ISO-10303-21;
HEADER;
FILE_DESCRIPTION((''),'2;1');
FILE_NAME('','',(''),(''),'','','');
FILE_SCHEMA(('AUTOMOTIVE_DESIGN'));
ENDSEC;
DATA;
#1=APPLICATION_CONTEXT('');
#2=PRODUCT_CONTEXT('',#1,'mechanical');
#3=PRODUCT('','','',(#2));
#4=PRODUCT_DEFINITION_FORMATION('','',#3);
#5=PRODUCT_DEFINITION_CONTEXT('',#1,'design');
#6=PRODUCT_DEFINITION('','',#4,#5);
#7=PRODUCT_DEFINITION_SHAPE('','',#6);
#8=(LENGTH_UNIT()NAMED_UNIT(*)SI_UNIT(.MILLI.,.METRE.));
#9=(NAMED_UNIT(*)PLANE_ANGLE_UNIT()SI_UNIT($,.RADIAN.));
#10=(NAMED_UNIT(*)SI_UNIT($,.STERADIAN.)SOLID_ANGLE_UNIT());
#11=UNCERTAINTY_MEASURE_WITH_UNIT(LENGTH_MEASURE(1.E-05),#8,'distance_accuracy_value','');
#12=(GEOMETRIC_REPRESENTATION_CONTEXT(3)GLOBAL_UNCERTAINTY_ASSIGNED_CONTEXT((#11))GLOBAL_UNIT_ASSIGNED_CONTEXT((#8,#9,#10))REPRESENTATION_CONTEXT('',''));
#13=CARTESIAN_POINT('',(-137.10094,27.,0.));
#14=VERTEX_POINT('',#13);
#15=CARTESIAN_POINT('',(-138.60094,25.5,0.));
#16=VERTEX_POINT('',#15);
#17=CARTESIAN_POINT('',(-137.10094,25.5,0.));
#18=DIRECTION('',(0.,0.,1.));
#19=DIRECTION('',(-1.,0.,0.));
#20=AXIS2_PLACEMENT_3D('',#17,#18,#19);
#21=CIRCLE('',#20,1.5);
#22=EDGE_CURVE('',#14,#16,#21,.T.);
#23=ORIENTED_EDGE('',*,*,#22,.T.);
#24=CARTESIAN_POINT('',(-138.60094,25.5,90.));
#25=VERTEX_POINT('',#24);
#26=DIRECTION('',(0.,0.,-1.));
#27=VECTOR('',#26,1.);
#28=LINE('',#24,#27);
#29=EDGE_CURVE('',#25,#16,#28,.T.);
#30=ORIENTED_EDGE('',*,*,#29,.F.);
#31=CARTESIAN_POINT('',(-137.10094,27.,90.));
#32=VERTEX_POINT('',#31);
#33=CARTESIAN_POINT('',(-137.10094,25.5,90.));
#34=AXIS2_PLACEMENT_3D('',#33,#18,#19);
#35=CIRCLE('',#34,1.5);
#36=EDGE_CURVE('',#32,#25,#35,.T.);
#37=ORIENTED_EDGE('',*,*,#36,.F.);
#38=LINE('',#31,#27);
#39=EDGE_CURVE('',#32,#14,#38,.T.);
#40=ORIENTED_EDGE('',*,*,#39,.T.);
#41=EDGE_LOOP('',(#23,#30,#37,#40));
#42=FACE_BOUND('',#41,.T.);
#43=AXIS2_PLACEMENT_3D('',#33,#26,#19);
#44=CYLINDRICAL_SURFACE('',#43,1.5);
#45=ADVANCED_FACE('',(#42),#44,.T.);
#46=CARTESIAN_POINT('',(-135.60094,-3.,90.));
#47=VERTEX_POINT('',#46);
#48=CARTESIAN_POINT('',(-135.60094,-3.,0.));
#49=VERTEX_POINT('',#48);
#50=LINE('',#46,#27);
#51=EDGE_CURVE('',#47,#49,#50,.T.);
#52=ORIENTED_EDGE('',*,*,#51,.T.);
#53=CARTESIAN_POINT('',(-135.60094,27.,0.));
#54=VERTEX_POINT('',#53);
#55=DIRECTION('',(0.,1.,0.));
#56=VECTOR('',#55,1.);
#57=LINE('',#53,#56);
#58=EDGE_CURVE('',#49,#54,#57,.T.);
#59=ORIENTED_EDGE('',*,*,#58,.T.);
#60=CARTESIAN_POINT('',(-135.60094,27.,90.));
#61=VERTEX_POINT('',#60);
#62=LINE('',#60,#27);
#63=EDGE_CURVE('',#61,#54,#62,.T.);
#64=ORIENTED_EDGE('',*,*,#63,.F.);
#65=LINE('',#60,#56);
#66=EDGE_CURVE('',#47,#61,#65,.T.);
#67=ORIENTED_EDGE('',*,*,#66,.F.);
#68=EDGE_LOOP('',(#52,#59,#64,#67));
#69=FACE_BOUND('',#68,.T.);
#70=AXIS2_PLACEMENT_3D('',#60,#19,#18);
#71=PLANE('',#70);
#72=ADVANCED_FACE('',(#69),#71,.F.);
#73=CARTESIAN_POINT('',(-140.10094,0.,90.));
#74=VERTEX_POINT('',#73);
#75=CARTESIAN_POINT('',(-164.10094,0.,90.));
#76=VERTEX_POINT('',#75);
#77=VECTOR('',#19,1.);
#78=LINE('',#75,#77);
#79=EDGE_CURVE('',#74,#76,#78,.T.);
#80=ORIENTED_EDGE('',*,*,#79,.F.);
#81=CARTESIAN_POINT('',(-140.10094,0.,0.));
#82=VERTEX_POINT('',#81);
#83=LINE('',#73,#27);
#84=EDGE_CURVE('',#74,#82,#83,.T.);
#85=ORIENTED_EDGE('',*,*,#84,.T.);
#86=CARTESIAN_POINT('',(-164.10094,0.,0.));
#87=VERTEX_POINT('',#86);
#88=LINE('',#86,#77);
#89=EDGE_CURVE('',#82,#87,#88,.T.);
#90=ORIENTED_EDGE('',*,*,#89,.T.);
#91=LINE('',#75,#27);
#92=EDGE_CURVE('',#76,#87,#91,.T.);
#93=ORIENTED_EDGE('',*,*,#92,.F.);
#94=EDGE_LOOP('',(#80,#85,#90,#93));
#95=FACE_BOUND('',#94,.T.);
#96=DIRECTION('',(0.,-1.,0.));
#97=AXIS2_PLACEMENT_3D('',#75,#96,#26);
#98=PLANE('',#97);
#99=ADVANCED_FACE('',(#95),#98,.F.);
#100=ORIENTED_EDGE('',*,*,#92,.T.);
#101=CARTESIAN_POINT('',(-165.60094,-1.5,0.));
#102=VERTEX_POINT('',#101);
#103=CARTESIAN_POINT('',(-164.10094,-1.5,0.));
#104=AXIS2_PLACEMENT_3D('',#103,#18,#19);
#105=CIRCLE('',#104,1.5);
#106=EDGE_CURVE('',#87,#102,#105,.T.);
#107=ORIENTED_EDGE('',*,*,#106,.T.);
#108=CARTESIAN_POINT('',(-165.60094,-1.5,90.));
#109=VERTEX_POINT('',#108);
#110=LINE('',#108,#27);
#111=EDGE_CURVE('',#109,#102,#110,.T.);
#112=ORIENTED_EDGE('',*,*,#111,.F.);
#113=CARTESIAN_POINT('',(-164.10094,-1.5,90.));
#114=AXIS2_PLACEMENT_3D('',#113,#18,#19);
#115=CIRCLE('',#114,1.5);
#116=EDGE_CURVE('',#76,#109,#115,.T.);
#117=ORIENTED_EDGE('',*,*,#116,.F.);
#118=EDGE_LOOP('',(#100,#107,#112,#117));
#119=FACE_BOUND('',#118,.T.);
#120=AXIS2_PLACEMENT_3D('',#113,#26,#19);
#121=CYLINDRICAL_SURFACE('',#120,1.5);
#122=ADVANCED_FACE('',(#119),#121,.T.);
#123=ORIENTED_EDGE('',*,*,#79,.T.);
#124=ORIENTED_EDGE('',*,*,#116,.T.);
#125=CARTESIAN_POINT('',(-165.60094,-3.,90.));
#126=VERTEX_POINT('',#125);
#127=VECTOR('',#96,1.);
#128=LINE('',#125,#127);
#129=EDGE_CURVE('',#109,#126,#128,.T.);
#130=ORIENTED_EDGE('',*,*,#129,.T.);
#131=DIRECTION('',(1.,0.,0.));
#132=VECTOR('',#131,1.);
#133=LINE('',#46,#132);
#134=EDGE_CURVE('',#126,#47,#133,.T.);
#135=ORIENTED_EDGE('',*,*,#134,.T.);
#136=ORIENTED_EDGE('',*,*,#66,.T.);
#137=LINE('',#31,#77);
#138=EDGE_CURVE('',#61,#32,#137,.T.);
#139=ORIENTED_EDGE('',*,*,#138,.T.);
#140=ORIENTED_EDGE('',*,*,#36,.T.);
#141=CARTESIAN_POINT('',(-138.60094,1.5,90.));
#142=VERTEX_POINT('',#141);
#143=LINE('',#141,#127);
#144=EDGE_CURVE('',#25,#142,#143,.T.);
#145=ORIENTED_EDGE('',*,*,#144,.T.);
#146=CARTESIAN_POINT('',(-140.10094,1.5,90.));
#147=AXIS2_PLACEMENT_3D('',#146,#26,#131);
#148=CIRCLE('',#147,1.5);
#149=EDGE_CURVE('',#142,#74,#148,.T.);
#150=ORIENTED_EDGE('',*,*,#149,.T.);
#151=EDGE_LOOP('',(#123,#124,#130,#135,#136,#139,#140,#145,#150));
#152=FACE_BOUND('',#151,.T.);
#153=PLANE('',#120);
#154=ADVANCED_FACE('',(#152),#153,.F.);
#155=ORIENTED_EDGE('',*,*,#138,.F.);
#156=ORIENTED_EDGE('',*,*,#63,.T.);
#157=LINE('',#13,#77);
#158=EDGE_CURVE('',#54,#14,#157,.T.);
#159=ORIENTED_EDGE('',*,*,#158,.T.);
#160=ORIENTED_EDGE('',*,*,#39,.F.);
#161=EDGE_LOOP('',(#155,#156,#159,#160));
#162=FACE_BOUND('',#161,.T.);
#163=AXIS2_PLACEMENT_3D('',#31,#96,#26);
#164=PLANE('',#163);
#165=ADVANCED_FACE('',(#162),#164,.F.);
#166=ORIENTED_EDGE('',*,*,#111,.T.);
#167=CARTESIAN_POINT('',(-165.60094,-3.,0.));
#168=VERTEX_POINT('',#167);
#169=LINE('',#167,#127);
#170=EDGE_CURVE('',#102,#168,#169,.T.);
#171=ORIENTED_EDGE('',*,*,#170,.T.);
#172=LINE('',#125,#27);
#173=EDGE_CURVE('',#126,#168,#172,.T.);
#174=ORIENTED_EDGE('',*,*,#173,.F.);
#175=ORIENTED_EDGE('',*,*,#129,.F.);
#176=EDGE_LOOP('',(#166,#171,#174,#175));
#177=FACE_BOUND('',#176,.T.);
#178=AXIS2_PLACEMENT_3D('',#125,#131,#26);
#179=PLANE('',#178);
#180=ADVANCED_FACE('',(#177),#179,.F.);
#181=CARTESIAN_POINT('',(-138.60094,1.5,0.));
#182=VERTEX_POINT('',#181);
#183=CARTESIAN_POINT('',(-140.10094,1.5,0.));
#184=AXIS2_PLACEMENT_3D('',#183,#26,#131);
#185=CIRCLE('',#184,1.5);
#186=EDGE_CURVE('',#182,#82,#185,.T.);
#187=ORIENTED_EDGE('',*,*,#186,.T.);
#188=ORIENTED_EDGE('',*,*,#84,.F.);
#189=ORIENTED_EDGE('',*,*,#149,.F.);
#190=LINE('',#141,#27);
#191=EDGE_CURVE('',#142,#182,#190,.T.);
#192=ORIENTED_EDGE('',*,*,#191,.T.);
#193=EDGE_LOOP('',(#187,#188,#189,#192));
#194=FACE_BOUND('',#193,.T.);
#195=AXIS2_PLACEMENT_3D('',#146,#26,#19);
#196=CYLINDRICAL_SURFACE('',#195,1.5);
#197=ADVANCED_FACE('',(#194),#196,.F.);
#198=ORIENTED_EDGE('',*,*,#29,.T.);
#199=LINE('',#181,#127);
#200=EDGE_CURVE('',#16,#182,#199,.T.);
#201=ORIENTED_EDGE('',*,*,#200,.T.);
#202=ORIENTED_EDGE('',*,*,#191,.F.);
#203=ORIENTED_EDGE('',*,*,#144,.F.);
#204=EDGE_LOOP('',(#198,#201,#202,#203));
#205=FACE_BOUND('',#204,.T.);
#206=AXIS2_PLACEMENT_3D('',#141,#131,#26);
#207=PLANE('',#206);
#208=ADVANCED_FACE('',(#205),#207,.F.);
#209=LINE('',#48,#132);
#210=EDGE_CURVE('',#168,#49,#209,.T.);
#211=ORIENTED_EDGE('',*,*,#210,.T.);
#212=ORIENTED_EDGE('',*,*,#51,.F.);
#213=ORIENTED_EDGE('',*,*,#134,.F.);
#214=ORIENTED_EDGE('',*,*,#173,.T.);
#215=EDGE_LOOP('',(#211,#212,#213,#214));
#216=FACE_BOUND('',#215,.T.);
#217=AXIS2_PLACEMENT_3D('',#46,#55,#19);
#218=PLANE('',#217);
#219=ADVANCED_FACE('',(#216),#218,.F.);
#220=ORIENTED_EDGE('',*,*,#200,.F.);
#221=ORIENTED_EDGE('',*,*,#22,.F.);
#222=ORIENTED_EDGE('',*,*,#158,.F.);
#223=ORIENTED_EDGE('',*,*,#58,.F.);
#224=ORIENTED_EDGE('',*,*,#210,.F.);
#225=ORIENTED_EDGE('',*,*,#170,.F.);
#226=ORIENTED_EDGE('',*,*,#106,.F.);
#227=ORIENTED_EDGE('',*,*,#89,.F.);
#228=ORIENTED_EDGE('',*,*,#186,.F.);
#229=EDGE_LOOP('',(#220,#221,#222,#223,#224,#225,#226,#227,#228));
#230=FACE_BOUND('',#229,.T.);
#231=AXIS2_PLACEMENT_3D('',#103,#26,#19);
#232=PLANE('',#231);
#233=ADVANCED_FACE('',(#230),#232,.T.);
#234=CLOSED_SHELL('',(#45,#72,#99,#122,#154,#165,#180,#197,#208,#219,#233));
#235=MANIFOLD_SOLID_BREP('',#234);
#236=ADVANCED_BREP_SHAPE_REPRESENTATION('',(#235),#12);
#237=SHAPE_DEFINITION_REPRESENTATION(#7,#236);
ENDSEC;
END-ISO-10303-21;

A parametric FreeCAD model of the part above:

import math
import FreeCAD as App
import Part
import Sketcher

V = App.Vector

doc = App.newDocument("Part")
body = doc.addObject("PartDesign::Body", "Body")

# Sketch on XY plane
sketch1 = body.newObject("Sketcher::SketchObject", "Sketch")
sketch1.AttachmentSupport = (doc.getObject("XY_Plane"), [""])
sketch1.MapMode = "FlatFace"
sketch1.addGeometry(Part.LineSegment(V(-135.6, -3, 0), V(-135.6, 27, 0)), False)
sketch1.addGeometry(Part.LineSegment(V(-135.6, 27, 0), V(-137.1, 27, 0)), False)
sketch1.addGeometry(Part.ArcOfCircle(Part.Circle(V(-137.1, 25.5, 0), V(0, 0, 1), 1.5), math.radians(90), math.radians(180)), False)
sketch1.addGeometry(Part.LineSegment(V(-138.6, 25.5, 0), V(-138.6, 1.5, 0)), False)
sketch1.addGeometry(Part.ArcOfCircle(Part.Circle(V(-140.1, 1.5, 0), V(0, 0, 1), 1.5), math.radians(-90), math.radians(0)), False)
sketch1.addGeometry(Part.LineSegment(V(-140.1, 0, 0), V(-164.1, 0, 0)), False)
sketch1.addGeometry(Part.ArcOfCircle(Part.Circle(V(-164.1, -1.5, 0), V(0, 0, 1), 1.5), math.radians(90), math.radians(180)), False)
sketch1.addGeometry(Part.LineSegment(V(-165.6, -1.5, 0), V(-165.6, -3, 0)), False)
sketch1.addGeometry(Part.LineSegment(V(-165.6, -3, 0), V(-135.6, -3, 0)), False)
sketch1.addConstraint(Sketcher.Constraint("Coincident", 0, 2, 1, 1))
sketch1.addConstraint(Sketcher.Constraint("Tangent", 1, 2, 2, 1))
sketch1.addConstraint(Sketcher.Constraint("Tangent", 2, 2, 3, 1))
sketch1.addConstraint(Sketcher.Constraint("Tangent", 3, 2, 4, 2))
sketch1.addConstraint(Sketcher.Constraint("Tangent", 4, 1, 5, 1))
sketch1.addConstraint(Sketcher.Constraint("Tangent", 5, 2, 6, 1))
sketch1.addConstraint(Sketcher.Constraint("Tangent", 6, 2, 7, 1))
sketch1.addConstraint(Sketcher.Constraint("Coincident", 7, 2, 8, 1))
sketch1.addConstraint(Sketcher.Constraint("Coincident", 8, 2, 0, 1))
sketch1.addConstraint(Sketcher.Constraint("Vertical", 0))
sketch1.addConstraint(Sketcher.Constraint("Horizontal", 1))
sketch1.addConstraint(Sketcher.Constraint("Vertical", 3))
sketch1.addConstraint(Sketcher.Constraint("Horizontal", 5))
sketch1.addConstraint(Sketcher.Constraint("Vertical", 7))
sketch1.addConstraint(Sketcher.Constraint("Horizontal", 8))
sketch1.addConstraint(Sketcher.Constraint("Equal", 2, 4))
sketch1.addConstraint(Sketcher.Constraint("Equal", 4, 6))
sketch1.addConstraint(Sketcher.Constraint("PointOnObject", 4, 1, -1))
sketch1.addConstraint(Sketcher.Constraint("Equal", 8, 0))
sketch1.addConstraint(Sketcher.Constraint("Equal", 5, 3))
sketch1.addConstraint(Sketcher.Constraint("Radius", 2, 1.5))
sketch1.addConstraint(Sketcher.Constraint("DistanceX", 5, 2, 5, 1, 24.0))
sketch1.addConstraint(Sketcher.Constraint("DistanceX", 8, 1, 8, 2, 30.0))
sketch1.addConstraint(Sketcher.Constraint("DistanceX", 2, 3, -1, 1, 137.10094))
pad1 = body.newObject("PartDesign::Pad", "Pad")
pad1.Profile = sketch1
pad1.Length = 90

doc.recompute()
